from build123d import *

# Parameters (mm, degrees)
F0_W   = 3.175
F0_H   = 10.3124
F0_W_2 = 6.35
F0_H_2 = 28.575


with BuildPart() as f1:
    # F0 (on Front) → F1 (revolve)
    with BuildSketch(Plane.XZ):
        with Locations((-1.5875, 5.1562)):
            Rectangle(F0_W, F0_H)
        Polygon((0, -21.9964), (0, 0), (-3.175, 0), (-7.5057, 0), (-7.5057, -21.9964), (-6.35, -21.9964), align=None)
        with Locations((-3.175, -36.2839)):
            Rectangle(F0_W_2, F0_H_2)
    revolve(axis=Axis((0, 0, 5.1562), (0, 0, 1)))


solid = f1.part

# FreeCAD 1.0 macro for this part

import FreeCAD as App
import Part
import Sketcher
from FreeCAD import Vector
Q = App.Units.Quantity

doc = App.newDocument("Part")
body = doc.addObject("PartDesign::Body", "Body")

sketch1 = body.newObject("Sketcher::SketchObject", "Sketch")
sketch1.AttachmentSupport = (doc.getObject("XZ_Plane"), [""])
sketch1.MapMode = "FlatFace"
sketch1.addGeometry([
    Part.LineSegment(Vector(-3.175, 10.3124, 0), Vector(-3.175, 0, 0)),
    Part.LineSegment(Vector(-3.175, 0, 0), Vector(-7.5057, 0, 0)),
    Part.LineSegment(Vector(-7.5057, 0, 0), Vector(-7.5057, -21.9964, 0)),
    Part.LineSegment(Vector(-7.5057, -21.9964, 0), Vector(-6.35, -21.9964, 0)),
    Part.LineSegment(Vector(-6.35, -21.9964, 0), Vector(-6.35, -50.5714, 0)),
    Part.LineSegment(Vector(-6.35, -50.5714, 0), Vector(0, -50.5714, 0)),
    Part.LineSegment(Vector(0, -50.5714, 0), Vector(0, 10.3124, 0)),
    Part.LineSegment(Vector(0, 10.3124, 0), Vector(-3.175, 10.3124, 0)),
], False)
sketch1.addConstraint([
    Sketcher.Constraint("Coincident", 0, 2, 1, 1),
    Sketcher.Constraint("Coincident", 1, 2, 2, 1),
    Sketcher.Constraint("Coincident", 2, 2, 3, 1),
    Sketcher.Constraint("Coincident", 3, 2, 4, 1),
    Sketcher.Constraint("Coincident", 4, 2, 5, 1),
    Sketcher.Constraint("Coincident", 5, 2, 6, 1),
    Sketcher.Constraint("Coincident", 6, 2, 7, 1),
    Sketcher.Constraint("Coincident", 7, 2, 0, 1),
    Sketcher.Constraint("Vertical", 0),
    Sketcher.Constraint("Horizontal", 1),
    Sketcher.Constraint("Vertical", 2),
    Sketcher.Constraint("Horizontal", 3),
    Sketcher.Constraint("Vertical", 4),
    Sketcher.Constraint("Horizontal", 5),
    Sketcher.Constraint("Vertical", 6),
    Sketcher.Constraint("Horizontal", 7),
    Sketcher.Constraint("PointOnObject", 0, 2, -1),
    Sketcher.Constraint("PointOnObject", 5, 2, -2),
    Sketcher.Constraint("DistanceX", 5, 1, 5, 2, Q("0.25 in")),
    Sketcher.Constraint("DistanceX", 7, 2, 7, 1, Q("0.125 in")),
    Sketcher.Constraint("DistanceY", 0, 2, 0, 1, Q("0.406 in")),
    Sketcher.Constraint("DistanceY", 2, 2, 2, 1, Q("0.866 in")),
    Sketcher.Constraint("DistanceY", 4, 2, 4, 1, Q("1.125 in")),
    Sketcher.Constraint("DistanceX", 1, 2, 1, 1, Q("0.1705 in")),
])
revolution = body.newObject("PartDesign::Revolution", "Revolution")
revolution.Profile = sketch1
revolution.ReferenceAxis = (sketch1, ["V_Axis"])
revolution.Angle = 360

doc.recompute()
